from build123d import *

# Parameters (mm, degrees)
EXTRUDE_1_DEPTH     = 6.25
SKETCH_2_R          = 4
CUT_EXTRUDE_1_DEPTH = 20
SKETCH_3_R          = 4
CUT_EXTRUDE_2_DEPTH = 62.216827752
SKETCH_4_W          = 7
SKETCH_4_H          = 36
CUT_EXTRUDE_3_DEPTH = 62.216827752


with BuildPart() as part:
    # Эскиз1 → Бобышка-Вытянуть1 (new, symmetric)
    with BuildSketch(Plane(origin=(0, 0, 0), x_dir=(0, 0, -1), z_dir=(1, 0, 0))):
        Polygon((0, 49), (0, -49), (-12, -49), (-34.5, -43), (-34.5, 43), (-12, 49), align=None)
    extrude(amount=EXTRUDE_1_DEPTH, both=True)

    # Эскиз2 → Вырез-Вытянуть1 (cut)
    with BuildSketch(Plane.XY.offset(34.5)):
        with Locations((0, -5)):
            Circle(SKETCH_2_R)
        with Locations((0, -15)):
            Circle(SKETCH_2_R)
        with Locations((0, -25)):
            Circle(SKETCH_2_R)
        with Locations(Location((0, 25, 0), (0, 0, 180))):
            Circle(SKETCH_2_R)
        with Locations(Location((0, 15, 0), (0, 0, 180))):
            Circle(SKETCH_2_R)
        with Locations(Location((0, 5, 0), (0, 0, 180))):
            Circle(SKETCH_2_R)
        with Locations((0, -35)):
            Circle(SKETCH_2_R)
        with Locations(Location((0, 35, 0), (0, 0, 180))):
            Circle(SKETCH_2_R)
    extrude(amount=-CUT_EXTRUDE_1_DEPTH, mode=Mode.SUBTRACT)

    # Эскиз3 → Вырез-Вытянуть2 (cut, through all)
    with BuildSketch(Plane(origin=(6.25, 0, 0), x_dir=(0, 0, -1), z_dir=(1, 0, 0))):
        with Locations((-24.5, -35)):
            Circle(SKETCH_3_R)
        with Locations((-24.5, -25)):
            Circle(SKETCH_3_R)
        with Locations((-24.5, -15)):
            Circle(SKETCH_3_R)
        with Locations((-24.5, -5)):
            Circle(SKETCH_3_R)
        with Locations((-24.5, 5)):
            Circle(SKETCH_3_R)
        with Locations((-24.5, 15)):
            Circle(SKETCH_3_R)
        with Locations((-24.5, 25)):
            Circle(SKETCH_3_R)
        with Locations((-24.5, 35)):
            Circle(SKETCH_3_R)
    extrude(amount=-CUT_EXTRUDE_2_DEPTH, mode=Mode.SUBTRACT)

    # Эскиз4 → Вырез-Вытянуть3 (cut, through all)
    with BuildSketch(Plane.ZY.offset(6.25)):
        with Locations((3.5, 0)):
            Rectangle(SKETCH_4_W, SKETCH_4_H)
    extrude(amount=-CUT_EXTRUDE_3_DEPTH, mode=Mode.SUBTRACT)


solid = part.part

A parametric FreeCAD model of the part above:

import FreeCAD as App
import Part
import Sketcher

V = App.Vector

doc = App.newDocument("Part")
params = doc.addObject("Spreadsheet::Sheet", "Params")
for row, (alias, value) in enumerate([
    ("sketch1_width", "98 mm"),
    ("sketch1_width2", "86 mm"),
    ("sketch1_height", "12 mm"),
    ("pad1_length", "12.5 mm"),
    ("sketch2_diameter", "8 mm"),
    ("pocket1_length", "20 mm"),
    ("sketch3_diameter", "8 mm"),
    ("sketch4_width", "36 mm"),
    ("sketch4_height", "7 mm"),
], start=1):
    params.set(f"A{row}", alias)
    params.set(f"B{row}", "=" + value)
    params.setAlias(f"B{row}", alias)

body = doc.addObject("PartDesign::Body", "Body")

sketch1 = doc.addObject("Sketcher::SketchObject", "Sketch")
body.addObject(sketch1)
sketch1.AttachmentSupport = (doc.YZ_Plane, [""])
sketch1.MapMode = "FlatFace"
sketch1.addGeometry(Part.LineSegment(V(-49, 0, 0), V(49, 0, 0)), False)
sketch1.addGeometry(Part.LineSegment(V(49, 0, 0), V(49, 12, 0)), False)
sketch1.addGeometry(Part.LineSegment(V(49, 12, 0), V(43, 34, 0)), False)
sketch1.addGeometry(Part.LineSegment(V(43, 34, 0), V(-43, 34, 0)), False)
sketch1.addGeometry(Part.LineSegment(V(-43, 34, 0), V(-49, 12, 0)), False)
sketch1.addGeometry(Part.LineSegment(V(-49, 12, 0), V(-49, 0, 0)), False)
sketch1.addConstraint(Sketcher.Constraint("Coincident", 0, 2, 1, 1))
sketch1.addConstraint(Sketcher.Constraint("Coincident", 1, 2, 2, 1))
sketch1.addConstraint(Sketcher.Constraint("Coincident", 2, 2, 3, 1))
sketch1.addConstraint(Sketcher.Constraint("Coincident", 3, 2, 4, 1))
sketch1.addConstraint(Sketcher.Constraint("Coincident", 4, 2, 5, 1))
sketch1.addConstraint(Sketcher.Constraint("Coincident", 5, 2, 0, 1))
sketch1.addConstraint(Sketcher.Constraint("Horizontal", 0))
sketch1.addConstraint(Sketcher.Constraint("Vertical", 1))
sketch1.addConstraint(Sketcher.Constraint("Horizontal", 3))
sketch1.addConstraint(Sketcher.Constraint("Vertical", 5))
sketch1.addConstraint(Sketcher.Constraint("Symmetric", 0, 2, 5, 2, -1, 1))
sketch1.addConstraint(Sketcher.Constraint("Horizontal", 1, 2, 4, 2))
sketch1.addConstraint(Sketcher.Constraint("Equal", 2, 4))
sketch1.addConstraint(Sketcher.Constraint("DistanceX", 0, 1, 0, 2, 98.0))
sketch1.addConstraint(Sketcher.Constraint("DistanceX", 3, 2, 3, 1, 86.0))
sketch1.addConstraint(Sketcher.Constraint("DistanceY", 1, 1, 1, 2, 12.0))
sketch1.addConstraint(Sketcher.Constraint("DistanceY", -1, 1, 2, 2, 34.5))
sketch1.setExpression("Constraints[13]", "Params.sketch1_width")
sketch1.setExpression("Constraints[14]", "Params.sketch1_width2")
sketch1.setExpression("Constraints[15]", "Params.sketch1_height")
pad1 = doc.addObject("PartDesign::Pad", "Pad")
body.addObject(pad1)
pad1.Profile = sketch1
pad1.setExpression("Length", "Params.pad1_length")
pad1.Midplane = True

sketch2 = doc.addObject("Sketcher::SketchObject", "Sketch001")
body.addObject(sketch2)
sketch2.AttachmentSupport = (doc.XY_Plane, [""])
sketch2.MapMode = "FlatFace"
sketch2.AttachmentOffset = App.Placement(V(0, 0, 34.5), App.Rotation())
sketch2.addGeometry(Part.Circle(V(0, -5, 0), V(0, 0, 1), 4), False)
sketch2.addGeometry(Part.Circle(V(0, -15, 0), V(0, 0, 1), 4), False)
sketch2.addGeometry(Part.Circle(V(0, -25, 0), V(0, 0, 1), 4), False)
sketch2.addGeometry(Part.Circle(V(0, 25, 0), V(0, 0, 1), 4), False)
sketch2.addGeometry(Part.Circle(V(0, 15, 0), V(0, 0, 1), 4), False)
sketch2.addGeometry(Part.Circle(V(0, 5, 0), V(0, 0, 1), 4), False)
sketch2.addGeometry(Part.Circle(V(0, -35, 0), V(0, 0, 1), 4), False)
sketch2.addGeometry(Part.Circle(V(0, 35, 0), V(0, 0, 1), 4), False)
sketch2.addConstraint(Sketcher.Constraint("Equal", 0, 1))
sketch2.addConstraint(Sketcher.Constraint("Equal", 1, 2))
sketch2.addConstraint(Sketcher.Constraint("Equal", 2, 3))
sketch2.addConstraint(Sketcher.Constraint("Equal", 3, 4))
sketch2.addConstraint(Sketcher.Constraint("Equal", 4, 5))
sketch2.addConstraint(Sketcher.Constraint("Equal", 5, 6))
sketch2.addConstraint(Sketcher.Constraint("Equal", 6, 7))
sketch2.addConstraint(Sketcher.Constraint("Symmetric", 2, 3, 3, 3, -1, 1))
sketch2.addConstraint(Sketcher.Constraint("Symmetric", 1, 3, 4, 3, -1, 1))
sketch2.addConstraint(Sketcher.Constraint("Symmetric", 0, 3, 5, 3, -1, 1))
sketch2.addConstraint(Sketcher.Constraint("Symmetric", 6, 3, 7, 3, -1, 1))
sketch2.addConstraint(Sketcher.Constraint("PointOnObject", 0, 3, -2))
sketch2.addConstraint(Sketcher.Constraint("PointOnObject", 1, 3, -2))
sketch2.addConstraint(Sketcher.Constraint("PointOnObject", 2, 3, -2))
sketch2.addConstraint(Sketcher.Constraint("PointOnObject", 6, 3, -2))
sketch2.addConstraint(Sketcher.Constraint("Diameter", 0, 8.0))
sketch2.addConstraint(Sketcher.Constraint("DistanceY", 0, 3, -1, 1, 5.0))
sketch2.addConstraint(Sketcher.Constraint("DistanceY", 1, 3, -1, 1, 15.0))
sketch2.addConstraint(Sketcher.Constraint("DistanceY", 2, 3, -1, 1, 25.0))
sketch2.addConstraint(Sketcher.Constraint("DistanceY", 6, 3, -1, 1, 35.0))
sketch2.setExpression("Constraints[15]", "Params.sketch2_diameter")
pocket1 = doc.addObject("PartDesign::Pocket", "Pocket")
body.addObject(pocket1)
pocket1.Profile = sketch2
pocket1.setExpression("Length", "Params.pocket1_length")

sketch3 = doc.addObject("Sketcher::SketchObject", "Sketch002")
body.addObject(sketch3)
sketch3.AttachmentSupport = (doc.YZ_Plane, [""])
sketch3.MapMode = "FlatFace"
sketch3.AttachmentOffset = App.Placement(V(0, 0, 6.25), App.Rotation())
sketch3.addGeometry(Part.Circle(V(-35, 24.5, 0), V(0, 0, 1), 4), False)
sketch3.addGeometry(Part.Circle(V(-25, 24.5, 0), V(0, 0, 1), 4), False)
sketch3.addGeometry(Part.Circle(V(-15, 24.5, 0), V(0, 0, 1), 4), False)
sketch3.addGeometry(Part.Circle(V(-5, 24.5, 0), V(0, 0, 1), 4), False)
sketch3.addGeometry(Part.Circle(V(5, 24.5, 0), V(0, 0, 1), 4), False)
sketch3.addGeometry(Part.Circle(V(15, 24.5, 0), V(0, 0, 1), 4), False)
sketch3.addGeometry(Part.Circle(V(25, 24.5, 0), V(0, 0, 1), 4), False)
sketch3.addGeometry(Part.Circle(V(35, 24.5, 0), V(0, 0, 1), 4), False)
sketch3.addConstraint(Sketcher.Constraint("Equal", 0, 1))
sketch3.addConstraint(Sketcher.Constraint("Equal", 1, 2))
sketch3.addConstraint(Sketcher.Constraint("Equal", 2, 3))
sketch3.addConstraint(Sketcher.Constraint("Equal", 3, 4))
sketch3.addConstraint(Sketcher.Constraint("Equal", 4, 5))
sketch3.addConstraint(Sketcher.Constraint("Equal", 5, 6))
sketch3.addConstraint(Sketcher.Constraint("Equal", 6, 7))
sketch3.addConstraint(Sketcher.Constraint("Symmetric", 3, 3, 4, 3, -2))
sketch3.addConstraint(Sketcher.Constraint("Symmetric", 2, 3, 5, 3, -2))
sketch3.addConstraint(Sketcher.Constraint("Symmetric", 1, 3, 6, 3, -2))
sketch3.addConstraint(Sketcher.Constraint("Symmetric", 0, 3, 7, 3, -2))
sketch3.addConstraint(Sketcher.Constraint("Horizontal", 0, 3, 1, 3))
sketch3.addConstraint(Sketcher.Constraint("Horizontal", 1, 3, 2, 3))
sketch3.addConstraint(Sketcher.Constraint("Horizontal", 2, 3, 3, 3))
sketch3.addConstraint(Sketcher.Constraint("Diameter", 0, 8.0))
sketch3.addConstraint(Sketcher.Constraint("DistanceX", 0, 3, -1, 1, 35.0))
sketch3.addConstraint(Sketcher.Constraint("DistanceX", 1, 3, -1, 1, 25.0))
sketch3.addConstraint(Sketcher.Constraint("DistanceX", 2, 3, -1, 1, 15.0))
sketch3.addConstraint(Sketcher.Constraint("DistanceX", 3, 3, -1, 1, 5.0))
sketch3.addConstraint(Sketcher.Constraint("DistanceY", -1, 1, 0, 3, 24.5))
sketch3.setExpression("Constraints[14]", "Params.sketch3_diameter")
pocket2 = doc.addObject("PartDesign::Pocket", "Pocket001")
body.addObject(pocket2)
pocket2.Profile = sketch3
pocket2.Type = "ThroughAll"

sketch4 = doc.addObject("Sketcher::SketchObject", "Sketch003")
body.addObject(sketch4)
sketch4.AttachmentSupport = (doc.YZ_Plane, [""])
sketch4.MapMode = "FlatFace"
sketch4.AttachmentOffset = App.Placement(V(0, 0, -6.25), App.Rotation())
sketch4.addGeometry(Part.LineSegment(V(18, 0, 0), V(-18, 0, 0)), False)
sketch4.addGeometry(Part.LineSegment(V(-18, 0, 0), V(-18, 7, 0)), False)
sketch4.addGeometry(Part.LineSegment(V(-18, 7, 0), V(18, 7, 0)), False)
sketch4.addGeometry(Part.LineSegment(V(18, 7, 0), V(18, 0, 0)), False)
sketch4.addConstraint(Sketcher.Constraint("Coincident", 0, 2, 1, 1))
sketch4.addConstraint(Sketcher.Constraint("Coincident", 1, 2, 2, 1))
sketch4.addConstraint(Sketcher.Constraint("Coincident", 2, 2, 3, 1))
sketch4.addConstraint(Sketcher.Constraint("Coincident", 3, 2, 0, 1))
sketch4.addConstraint(Sketcher.Constraint("Horizontal", 0))
sketch4.addConstraint(Sketcher.Constraint("Vertical", 1))
sketch4.addConstraint(Sketcher.Constraint("Horizontal", 2))
sketch4.addConstraint(Sketcher.Constraint("Vertical", 3))
sketch4.addConstraint(Sketcher.Constraint("Symmetric", 0, 2, 3, 2, -1, 1))
sketch4.addConstraint(Sketcher.Constraint("DistanceX", 0, 2, 0, 1, 36.0))
sketch4.addConstraint(Sketcher.Constraint("DistanceY", 1, 1, 1, 2, 7.0))
sketch4.setExpression("Constraints[9]", "Params.sketch4_width")
sketch4.setExpression("Constraints[10]", "Params.sketch4_height")
pocket3 = doc.addObject("PartDesign::Pocket", "Pocket002")
body.addObject(pocket3)
pocket3.Profile = sketch4
pocket3.Type = "ThroughAll"
pocket3.Reversed = True

doc.recompute()
